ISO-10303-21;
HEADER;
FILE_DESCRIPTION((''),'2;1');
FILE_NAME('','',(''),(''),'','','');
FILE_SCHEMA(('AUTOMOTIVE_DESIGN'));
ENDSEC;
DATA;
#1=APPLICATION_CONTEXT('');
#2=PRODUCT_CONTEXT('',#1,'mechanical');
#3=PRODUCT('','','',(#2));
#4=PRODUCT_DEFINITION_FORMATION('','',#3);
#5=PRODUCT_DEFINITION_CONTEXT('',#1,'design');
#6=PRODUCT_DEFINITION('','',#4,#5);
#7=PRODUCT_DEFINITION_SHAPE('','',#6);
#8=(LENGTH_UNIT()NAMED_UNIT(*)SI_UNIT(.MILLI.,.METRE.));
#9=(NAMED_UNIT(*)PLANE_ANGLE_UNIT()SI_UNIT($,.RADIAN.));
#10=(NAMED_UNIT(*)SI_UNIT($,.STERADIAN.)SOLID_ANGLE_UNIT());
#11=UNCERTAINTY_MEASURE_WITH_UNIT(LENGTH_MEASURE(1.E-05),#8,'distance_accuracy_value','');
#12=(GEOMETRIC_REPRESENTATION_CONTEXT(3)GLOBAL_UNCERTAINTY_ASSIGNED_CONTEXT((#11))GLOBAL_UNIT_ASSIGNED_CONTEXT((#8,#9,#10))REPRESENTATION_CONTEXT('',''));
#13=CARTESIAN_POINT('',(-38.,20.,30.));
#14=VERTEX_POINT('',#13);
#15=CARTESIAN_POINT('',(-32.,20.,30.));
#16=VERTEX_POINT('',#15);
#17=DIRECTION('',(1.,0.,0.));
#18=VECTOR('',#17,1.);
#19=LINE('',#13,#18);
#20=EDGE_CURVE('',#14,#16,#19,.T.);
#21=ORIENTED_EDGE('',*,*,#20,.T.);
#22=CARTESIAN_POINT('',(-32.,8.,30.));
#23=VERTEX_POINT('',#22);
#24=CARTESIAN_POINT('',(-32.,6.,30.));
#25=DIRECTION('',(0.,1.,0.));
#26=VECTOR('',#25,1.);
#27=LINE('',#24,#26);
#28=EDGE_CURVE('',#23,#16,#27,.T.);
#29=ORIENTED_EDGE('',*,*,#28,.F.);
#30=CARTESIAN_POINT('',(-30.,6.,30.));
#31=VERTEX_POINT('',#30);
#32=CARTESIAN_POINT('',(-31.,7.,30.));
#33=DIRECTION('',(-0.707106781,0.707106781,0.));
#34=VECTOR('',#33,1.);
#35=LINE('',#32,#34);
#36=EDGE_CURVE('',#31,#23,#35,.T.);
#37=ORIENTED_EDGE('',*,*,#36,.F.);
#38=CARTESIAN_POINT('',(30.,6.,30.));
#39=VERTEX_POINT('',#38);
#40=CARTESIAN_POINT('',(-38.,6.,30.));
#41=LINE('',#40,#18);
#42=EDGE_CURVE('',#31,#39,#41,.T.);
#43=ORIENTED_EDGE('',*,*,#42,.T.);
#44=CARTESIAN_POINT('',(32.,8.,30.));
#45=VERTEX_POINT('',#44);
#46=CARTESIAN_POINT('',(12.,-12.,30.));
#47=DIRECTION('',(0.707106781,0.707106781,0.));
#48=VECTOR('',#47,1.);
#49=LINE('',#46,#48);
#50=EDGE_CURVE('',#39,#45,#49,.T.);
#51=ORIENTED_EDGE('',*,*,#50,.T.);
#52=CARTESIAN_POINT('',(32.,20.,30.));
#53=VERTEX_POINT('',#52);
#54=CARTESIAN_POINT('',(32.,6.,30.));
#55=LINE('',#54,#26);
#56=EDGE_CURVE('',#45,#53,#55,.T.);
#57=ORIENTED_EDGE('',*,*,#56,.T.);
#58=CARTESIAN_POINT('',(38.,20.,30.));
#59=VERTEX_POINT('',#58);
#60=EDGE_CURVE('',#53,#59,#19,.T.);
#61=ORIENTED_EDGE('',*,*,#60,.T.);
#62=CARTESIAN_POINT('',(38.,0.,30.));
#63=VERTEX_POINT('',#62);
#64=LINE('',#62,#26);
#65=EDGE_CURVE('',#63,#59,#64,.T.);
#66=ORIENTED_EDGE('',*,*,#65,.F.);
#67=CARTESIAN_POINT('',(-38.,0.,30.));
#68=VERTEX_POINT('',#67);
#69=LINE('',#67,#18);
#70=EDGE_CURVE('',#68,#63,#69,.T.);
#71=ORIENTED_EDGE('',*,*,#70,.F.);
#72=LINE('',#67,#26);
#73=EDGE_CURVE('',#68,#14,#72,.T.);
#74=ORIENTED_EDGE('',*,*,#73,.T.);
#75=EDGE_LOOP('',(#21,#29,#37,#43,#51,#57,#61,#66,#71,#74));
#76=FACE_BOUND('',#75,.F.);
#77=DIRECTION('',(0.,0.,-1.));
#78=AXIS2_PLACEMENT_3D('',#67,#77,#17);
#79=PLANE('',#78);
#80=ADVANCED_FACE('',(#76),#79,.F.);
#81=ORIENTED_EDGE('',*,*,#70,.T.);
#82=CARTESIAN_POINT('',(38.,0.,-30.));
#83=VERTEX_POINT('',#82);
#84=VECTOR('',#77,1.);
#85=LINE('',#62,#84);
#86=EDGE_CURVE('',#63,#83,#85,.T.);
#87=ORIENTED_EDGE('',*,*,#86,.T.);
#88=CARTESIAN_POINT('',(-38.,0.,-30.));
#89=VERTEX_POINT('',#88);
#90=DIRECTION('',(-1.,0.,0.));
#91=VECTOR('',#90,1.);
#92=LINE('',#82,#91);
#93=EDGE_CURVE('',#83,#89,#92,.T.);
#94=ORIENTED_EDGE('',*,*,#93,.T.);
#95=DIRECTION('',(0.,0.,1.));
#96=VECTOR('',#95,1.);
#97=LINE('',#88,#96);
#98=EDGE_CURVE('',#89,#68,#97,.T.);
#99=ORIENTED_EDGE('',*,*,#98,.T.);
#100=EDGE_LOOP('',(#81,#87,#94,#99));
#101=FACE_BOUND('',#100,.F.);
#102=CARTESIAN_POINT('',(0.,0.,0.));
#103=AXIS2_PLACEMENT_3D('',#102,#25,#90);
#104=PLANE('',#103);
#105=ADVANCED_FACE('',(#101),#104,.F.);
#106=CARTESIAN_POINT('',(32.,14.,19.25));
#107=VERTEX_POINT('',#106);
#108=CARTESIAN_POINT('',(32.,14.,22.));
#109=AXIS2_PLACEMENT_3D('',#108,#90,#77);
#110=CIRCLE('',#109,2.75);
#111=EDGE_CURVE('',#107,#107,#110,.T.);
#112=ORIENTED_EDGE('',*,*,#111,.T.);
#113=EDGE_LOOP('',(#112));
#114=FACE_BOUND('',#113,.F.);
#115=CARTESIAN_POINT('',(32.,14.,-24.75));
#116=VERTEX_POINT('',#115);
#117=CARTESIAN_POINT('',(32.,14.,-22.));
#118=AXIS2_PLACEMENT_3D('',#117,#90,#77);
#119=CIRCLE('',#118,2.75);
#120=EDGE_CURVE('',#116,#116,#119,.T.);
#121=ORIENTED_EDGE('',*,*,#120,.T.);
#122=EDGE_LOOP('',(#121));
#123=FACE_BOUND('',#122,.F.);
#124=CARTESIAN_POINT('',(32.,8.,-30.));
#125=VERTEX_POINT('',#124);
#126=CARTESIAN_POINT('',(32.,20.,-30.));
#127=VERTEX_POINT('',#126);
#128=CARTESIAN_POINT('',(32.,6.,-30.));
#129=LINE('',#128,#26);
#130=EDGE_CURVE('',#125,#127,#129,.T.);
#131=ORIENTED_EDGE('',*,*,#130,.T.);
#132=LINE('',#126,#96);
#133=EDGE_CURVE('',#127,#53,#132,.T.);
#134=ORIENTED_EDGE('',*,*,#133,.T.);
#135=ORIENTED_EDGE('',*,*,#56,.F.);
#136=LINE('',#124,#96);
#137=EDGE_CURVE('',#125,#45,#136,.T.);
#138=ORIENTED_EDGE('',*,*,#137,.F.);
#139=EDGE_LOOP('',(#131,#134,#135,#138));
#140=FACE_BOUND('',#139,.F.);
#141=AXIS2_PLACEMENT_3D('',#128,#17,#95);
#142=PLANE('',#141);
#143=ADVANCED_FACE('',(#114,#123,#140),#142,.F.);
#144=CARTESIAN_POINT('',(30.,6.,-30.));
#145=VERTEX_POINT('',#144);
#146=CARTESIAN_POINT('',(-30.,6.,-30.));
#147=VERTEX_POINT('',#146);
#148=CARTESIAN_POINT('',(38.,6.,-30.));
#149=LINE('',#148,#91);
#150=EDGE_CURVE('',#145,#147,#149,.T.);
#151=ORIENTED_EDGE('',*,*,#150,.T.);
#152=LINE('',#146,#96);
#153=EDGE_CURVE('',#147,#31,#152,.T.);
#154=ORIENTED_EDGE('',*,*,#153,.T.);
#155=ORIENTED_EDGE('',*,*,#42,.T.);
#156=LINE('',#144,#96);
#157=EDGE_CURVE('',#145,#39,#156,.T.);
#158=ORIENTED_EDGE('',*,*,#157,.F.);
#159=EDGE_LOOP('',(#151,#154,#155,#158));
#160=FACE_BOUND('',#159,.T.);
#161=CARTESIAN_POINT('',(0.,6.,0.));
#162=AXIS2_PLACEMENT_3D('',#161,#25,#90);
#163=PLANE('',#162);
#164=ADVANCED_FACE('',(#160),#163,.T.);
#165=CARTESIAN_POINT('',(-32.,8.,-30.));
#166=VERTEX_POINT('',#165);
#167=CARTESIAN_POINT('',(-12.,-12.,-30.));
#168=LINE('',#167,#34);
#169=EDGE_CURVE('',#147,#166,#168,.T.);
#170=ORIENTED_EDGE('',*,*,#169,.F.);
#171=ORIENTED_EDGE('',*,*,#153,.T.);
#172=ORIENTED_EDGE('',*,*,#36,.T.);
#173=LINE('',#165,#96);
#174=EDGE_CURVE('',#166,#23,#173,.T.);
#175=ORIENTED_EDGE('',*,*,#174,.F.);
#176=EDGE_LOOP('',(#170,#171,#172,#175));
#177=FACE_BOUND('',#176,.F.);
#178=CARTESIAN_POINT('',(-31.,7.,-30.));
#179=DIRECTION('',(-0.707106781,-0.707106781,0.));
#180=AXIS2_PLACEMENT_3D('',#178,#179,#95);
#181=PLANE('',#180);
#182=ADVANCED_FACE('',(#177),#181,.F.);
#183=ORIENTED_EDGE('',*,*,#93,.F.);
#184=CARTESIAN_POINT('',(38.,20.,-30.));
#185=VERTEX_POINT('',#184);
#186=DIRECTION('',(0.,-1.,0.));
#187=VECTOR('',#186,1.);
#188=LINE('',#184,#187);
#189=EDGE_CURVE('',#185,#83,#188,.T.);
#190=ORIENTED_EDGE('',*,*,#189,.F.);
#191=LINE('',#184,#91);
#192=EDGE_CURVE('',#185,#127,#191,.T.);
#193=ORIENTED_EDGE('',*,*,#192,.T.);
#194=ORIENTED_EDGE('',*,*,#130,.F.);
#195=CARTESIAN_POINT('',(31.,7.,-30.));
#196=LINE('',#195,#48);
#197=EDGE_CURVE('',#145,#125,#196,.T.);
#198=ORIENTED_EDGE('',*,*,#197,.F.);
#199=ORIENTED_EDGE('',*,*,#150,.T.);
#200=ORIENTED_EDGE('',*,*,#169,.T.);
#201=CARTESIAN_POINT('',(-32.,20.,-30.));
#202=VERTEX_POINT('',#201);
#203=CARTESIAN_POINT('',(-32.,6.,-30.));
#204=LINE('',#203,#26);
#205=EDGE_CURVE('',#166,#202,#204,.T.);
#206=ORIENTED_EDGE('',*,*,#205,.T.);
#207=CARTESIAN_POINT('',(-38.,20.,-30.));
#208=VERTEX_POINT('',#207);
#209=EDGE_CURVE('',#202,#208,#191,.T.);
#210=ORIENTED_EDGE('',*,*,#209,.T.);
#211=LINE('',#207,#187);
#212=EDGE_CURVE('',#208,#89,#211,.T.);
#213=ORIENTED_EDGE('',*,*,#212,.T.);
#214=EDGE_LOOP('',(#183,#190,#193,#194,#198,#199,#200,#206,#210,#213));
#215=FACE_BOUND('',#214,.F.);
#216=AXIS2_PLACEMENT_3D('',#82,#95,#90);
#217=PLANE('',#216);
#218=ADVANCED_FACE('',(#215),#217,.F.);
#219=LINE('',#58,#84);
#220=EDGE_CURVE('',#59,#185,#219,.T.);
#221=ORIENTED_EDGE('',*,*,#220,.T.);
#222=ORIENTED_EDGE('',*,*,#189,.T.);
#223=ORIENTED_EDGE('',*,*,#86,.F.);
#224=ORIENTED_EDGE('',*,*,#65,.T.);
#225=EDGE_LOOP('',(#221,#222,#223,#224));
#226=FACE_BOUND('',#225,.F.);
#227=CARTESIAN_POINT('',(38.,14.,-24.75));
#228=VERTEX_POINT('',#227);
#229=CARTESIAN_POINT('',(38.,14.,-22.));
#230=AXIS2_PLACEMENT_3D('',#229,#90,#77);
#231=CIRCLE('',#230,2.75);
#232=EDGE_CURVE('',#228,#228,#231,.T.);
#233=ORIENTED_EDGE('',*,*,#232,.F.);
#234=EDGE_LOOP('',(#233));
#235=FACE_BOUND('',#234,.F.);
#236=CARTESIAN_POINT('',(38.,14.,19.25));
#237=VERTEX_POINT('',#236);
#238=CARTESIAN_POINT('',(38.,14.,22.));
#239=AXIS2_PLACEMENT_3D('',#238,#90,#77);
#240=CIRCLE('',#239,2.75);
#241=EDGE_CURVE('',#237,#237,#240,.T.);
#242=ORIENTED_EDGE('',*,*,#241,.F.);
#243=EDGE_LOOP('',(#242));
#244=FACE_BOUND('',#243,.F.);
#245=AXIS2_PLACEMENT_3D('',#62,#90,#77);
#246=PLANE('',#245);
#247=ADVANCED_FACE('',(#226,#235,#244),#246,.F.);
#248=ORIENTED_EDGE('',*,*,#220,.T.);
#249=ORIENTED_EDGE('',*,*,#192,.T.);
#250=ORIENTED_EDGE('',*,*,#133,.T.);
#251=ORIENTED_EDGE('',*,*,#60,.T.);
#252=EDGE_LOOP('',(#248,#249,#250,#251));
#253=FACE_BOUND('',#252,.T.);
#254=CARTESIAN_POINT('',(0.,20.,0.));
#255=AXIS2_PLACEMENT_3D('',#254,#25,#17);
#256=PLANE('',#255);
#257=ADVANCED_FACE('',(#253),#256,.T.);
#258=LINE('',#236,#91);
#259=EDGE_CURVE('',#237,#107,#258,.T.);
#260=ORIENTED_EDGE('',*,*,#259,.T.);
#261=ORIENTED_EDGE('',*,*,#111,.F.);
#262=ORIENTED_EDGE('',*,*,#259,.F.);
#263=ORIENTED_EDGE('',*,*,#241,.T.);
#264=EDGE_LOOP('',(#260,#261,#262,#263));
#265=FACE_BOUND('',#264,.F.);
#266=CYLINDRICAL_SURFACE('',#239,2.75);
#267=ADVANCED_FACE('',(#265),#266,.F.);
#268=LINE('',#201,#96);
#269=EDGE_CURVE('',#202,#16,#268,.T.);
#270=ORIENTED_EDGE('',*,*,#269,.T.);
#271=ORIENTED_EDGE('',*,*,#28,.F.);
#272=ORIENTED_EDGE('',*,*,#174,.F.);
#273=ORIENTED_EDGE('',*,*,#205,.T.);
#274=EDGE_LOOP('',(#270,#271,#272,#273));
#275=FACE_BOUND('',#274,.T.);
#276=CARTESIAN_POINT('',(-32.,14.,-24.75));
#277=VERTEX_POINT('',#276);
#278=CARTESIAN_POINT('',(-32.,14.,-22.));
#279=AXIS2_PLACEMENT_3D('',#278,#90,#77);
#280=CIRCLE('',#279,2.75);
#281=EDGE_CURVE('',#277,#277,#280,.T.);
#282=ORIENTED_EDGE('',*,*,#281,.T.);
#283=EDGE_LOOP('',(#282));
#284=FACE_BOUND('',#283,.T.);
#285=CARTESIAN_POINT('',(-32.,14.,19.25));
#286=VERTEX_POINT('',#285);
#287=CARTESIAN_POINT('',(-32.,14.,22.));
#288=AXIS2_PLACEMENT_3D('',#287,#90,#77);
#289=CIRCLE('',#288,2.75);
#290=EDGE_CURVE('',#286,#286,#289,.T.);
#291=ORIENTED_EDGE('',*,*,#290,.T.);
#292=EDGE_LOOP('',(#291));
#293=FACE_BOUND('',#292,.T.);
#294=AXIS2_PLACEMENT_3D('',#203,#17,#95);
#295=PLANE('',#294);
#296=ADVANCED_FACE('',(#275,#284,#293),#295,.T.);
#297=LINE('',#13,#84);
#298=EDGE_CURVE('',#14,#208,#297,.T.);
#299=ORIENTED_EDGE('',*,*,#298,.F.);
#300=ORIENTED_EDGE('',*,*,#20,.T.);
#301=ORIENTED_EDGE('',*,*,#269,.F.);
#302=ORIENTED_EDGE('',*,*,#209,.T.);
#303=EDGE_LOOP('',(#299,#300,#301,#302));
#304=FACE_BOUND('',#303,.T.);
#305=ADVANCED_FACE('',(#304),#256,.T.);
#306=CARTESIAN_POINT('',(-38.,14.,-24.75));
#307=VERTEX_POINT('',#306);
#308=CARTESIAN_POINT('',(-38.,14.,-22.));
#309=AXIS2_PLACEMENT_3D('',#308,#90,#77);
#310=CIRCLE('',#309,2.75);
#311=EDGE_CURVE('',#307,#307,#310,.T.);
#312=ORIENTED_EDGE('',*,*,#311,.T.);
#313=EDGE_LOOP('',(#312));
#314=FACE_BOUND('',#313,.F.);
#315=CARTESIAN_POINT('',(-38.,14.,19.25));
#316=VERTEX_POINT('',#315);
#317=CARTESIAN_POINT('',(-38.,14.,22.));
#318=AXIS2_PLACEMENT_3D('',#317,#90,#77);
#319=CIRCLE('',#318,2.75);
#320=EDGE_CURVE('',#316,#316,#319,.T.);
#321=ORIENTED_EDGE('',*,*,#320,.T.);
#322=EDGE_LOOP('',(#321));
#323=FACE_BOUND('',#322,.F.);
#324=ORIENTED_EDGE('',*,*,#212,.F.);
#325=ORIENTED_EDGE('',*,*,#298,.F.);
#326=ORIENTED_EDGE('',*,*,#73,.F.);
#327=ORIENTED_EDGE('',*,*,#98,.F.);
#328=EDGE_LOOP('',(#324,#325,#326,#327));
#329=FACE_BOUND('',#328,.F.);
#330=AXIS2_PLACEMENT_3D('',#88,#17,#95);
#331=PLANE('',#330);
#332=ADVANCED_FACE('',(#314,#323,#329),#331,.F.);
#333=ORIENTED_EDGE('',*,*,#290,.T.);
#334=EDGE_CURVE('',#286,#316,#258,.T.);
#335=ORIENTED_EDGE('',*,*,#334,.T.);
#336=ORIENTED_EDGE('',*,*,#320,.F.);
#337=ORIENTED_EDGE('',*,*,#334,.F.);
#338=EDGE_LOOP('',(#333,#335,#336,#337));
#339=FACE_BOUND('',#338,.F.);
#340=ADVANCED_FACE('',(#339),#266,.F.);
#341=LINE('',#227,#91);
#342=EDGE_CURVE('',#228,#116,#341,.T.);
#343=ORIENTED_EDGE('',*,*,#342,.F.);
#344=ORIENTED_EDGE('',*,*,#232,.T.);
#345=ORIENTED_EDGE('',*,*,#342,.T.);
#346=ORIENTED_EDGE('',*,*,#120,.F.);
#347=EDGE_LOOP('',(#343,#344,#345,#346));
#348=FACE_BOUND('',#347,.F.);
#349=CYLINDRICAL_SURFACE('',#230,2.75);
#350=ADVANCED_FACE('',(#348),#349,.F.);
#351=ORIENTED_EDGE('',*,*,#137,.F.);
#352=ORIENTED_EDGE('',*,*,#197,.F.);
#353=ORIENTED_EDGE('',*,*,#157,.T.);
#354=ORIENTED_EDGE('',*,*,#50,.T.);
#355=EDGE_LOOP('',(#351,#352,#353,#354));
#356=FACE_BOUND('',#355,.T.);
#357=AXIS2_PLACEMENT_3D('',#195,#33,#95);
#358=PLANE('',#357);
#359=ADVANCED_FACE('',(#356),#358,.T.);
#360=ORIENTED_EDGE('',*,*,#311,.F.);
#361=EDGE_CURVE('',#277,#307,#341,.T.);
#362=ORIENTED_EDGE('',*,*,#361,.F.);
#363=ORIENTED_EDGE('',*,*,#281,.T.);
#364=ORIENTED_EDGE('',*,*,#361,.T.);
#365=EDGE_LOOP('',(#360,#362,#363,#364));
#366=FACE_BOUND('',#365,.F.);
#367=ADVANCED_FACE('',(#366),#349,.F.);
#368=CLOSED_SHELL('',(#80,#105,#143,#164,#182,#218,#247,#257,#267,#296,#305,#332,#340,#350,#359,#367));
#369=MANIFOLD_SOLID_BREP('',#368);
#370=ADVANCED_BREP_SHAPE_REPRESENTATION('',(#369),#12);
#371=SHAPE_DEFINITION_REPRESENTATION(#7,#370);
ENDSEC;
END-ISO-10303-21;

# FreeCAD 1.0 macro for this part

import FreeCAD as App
import Part
import Sketcher

V = App.Vector


def edges_at(feature, points):
    """Names of the edges that pass closest to the given points."""
    edges = feature.Shape.Edges
    near = lambda p: min(range(len(edges)), key=lambda i: edges[i].distToShape(Part.Vertex(*p))[0])
    return sorted({f"Edge{near(p) + 1}" for p in points})


def add_polygon(sketch, points):
    """Adds a closed chain of lines whose ends are joined by coincident constraints."""
    first, n = sketch.GeometryCount, len(points)
    for a, b in zip(points, points[1:] + points[:1]):
        sketch.addGeometry(Part.LineSegment(App.Vector(*a, 0), App.Vector(*b, 0)), False)
    for i in range(n):
        sketch.addConstraint(Sketcher.Constraint("Coincident", first + i, 2, first + (i + 1) % n, 1))

doc = App.newDocument("Part")
body = doc.addObject("PartDesign::Body", "Body")

# Sketch on XZ plane
sketch1 = body.newObject("Sketcher::SketchObject", "Sketch")
sketch1.AttachmentSupport = (doc.getObject("XZ_Plane"), [""])
sketch1.MapMode = "FlatFace"
add_polygon(sketch1, [(-38, -30), (-38, 30), (38, 30), (38, -30)])  # lines 0-3
sketch1.addConstraint(Sketcher.Constraint("Vertical", 0))
sketch1.addConstraint(Sketcher.Constraint("Horizontal", 1))
sketch1.addConstraint(Sketcher.Constraint("Vertical", 2))
sketch1.addConstraint(Sketcher.Constraint("Horizontal", 3))
sketch1.addConstraint(Sketcher.Constraint("Symmetric", 0, 2, 2, 2, -1, 1))
sketch1.addConstraint(Sketcher.Constraint("DistanceX", 1, 1, 1, 2, 76.0))
sketch1.addConstraint(Sketcher.Constraint("DistanceY", 0, 1, 0, 2, 60.0))
pad1 = body.newObject("PartDesign::Pad", "Pad")
pad1.Profile = sketch1
pad1.Length = 6
pad1.Reversed = True

# Sketch on XZ plane
sketch2 = body.newObject("Sketcher::SketchObject", "Sketch001")
sketch2.AttachmentSupport = (doc.getObject("XZ_Plane"), [""])
sketch2.MapMode = "FlatFace"
sketch2.AttachmentOffset = App.Placement(V(0, 0, -6), App.Rotation())
add_polygon(sketch2, [(38, 30), (38, -30), (32, -30), (32, 30)])  # lines 0-3
add_polygon(sketch2, [(-32, 30), (-32, -30), (-38, -30), (-38, 30)])  # lines 4-7
sketch2.addConstraint(Sketcher.Constraint("Vertical", 0))
sketch2.addConstraint(Sketcher.Constraint("Horizontal", 1))
sketch2.addConstraint(Sketcher.Constraint("Vertical", 2))
sketch2.addConstraint(Sketcher.Constraint("Horizontal", 3))
sketch2.addConstraint(Sketcher.Constraint("Vertical", 4))
sketch2.addConstraint(Sketcher.Constraint("Horizontal", 5))
sketch2.addConstraint(Sketcher.Constraint("Vertical", 6))
sketch2.addConstraint(Sketcher.Constraint("Horizontal", 7))
sketch2.addConstraint(Sketcher.Constraint("Symmetric", 2, 2, 4, 2, -1, 1))
sketch2.addConstraint(Sketcher.Constraint("Symmetric", 0, 2, 6, 2, -1, 1))
sketch2.addConstraint(Sketcher.Constraint("Horizontal", 1, 2, 4, 2))
sketch2.addConstraint(Sketcher.Constraint("DistanceX", 1, 2, 1, 1, 6.0))
sketch2.addConstraint(Sketcher.Constraint("DistanceY", 0, 2, 0, 1, 60.0))
sketch2.addConstraint(Sketcher.Constraint("DistanceX", -1, 1, 0, 2, 38.0))
pad2 = body.newObject("PartDesign::Pad", "Pad001")
pad2.Profile = sketch2
pad2.Length = 14
pad2.Reversed = True
doc.recompute()

chamfer = body.newObject("PartDesign::Chamfer", "Chamfer")
chamfer.Base = (pad2, edges_at(pad2, [(-32, 6, 0), (32, 6, 0)]))
chamfer.Size = 2

# Sketch on YZ plane
sketch3 = body.newObject("Sketcher::SketchObject", "Sketch002")
sketch3.AttachmentSupport = (doc.getObject("YZ_Plane"), [""])
sketch3.MapMode = "FlatFace"
sketch3.AttachmentOffset = App.Placement(V(0, 0, 38), App.Rotation())
sketch3.addGeometry(Part.Circle(V(14, -22, 0), V(0, 0, 1), 2.8), False)
sketch3.addGeometry(Part.Circle(V(14, 22, 0), V(0, 0, 1), 2.8), False)
sketch3.addConstraint(Sketcher.Constraint("Equal", 0, 1))
sketch3.addConstraint(Sketcher.Constraint("Symmetric", 0, 3, 1, 3, -1))
sketch3.addConstraint(Sketcher.Constraint("Diameter", 0, 5.5))
sketch3.addConstraint(Sketcher.Constraint("DistanceX", -1, 1, 0, 3, 14.0))
sketch3.addConstraint(Sketcher.Constraint("DistanceY", 0, 3, -1, 1, 22.0))
doc.recompute()
hole = body.newObject("PartDesign::Hole", "Hole")
hole.Profile = sketch3
hole.ThreadType = "None"
hole.Diameter = 5.5
hole.DepthType = "ThroughAll"

doc.recompute()
